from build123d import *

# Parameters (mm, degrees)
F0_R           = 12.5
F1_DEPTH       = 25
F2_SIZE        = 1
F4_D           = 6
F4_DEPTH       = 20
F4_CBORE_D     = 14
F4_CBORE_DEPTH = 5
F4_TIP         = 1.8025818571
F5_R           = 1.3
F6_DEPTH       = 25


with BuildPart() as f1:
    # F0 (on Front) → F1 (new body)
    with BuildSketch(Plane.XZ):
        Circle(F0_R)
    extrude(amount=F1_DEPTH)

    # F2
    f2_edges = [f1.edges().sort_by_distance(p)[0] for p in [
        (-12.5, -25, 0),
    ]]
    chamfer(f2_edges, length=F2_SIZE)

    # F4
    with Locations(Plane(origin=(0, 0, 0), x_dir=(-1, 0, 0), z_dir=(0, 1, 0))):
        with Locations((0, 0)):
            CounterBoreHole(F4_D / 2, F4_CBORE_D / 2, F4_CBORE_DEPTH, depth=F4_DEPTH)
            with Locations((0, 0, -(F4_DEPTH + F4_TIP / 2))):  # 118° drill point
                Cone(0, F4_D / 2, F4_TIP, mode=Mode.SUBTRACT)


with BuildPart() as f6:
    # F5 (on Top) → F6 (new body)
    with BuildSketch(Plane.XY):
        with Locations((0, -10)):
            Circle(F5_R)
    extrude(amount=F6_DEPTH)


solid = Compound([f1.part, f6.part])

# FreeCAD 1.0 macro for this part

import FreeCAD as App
import Part
import Sketcher

V = App.Vector
Q = App.Units.Quantity


def edges_at(feature, points):
    """Names of the edges that pass closest to the given points."""
    edges = feature.Shape.Edges
    near = lambda p: min(range(len(edges)), key=lambda i: edges[i].distToShape(Part.Vertex(*p))[0])
    return sorted({f"Edge{near(p) + 1}" for p in points})

doc = App.newDocument("Part")
params = doc.addObject("Spreadsheet::Sheet", "Params")
for row, (alias, value) in enumerate([
    ("sketch1_diameter", "25 mm"),
    ("pad1_length", "25 mm"),
    ("chamfer_size", "1 mm"),
    ("sketch2_diameter", "6 mm"),
    ("hole_diameter", "6 mm"),
    ("hole_depth", "20 mm"),
    ("hole_cbore_diameter", "14 mm"),
    ("hole_cbore_depth", "5 mm"),
    ("sketch3_diameter", "2.6 mm"),
    ("pad2_length", "25 mm"),
], start=1):
    params.set(f"A{row}", alias)
    params.set(f"B{row}", "=" + value)
    params.setAlias(f"B{row}", alias)

body = doc.addObject("PartDesign::Body", "Body")

# Sketch on XZ plane
sketch1 = body.newObject("Sketcher::SketchObject", "Sketch")
sketch1.AttachmentSupport = (doc.getObject("XZ_Plane"), [""])
sketch1.MapMode = "FlatFace"
sketch1.addGeometry(Part.Circle(V(0, 0, 0), V(0, 0, 1), 12), False)
sketch1.addConstraint([
    Sketcher.Constraint("Coincident", 0, 3, -1, 1),
    Sketcher.Constraint("Diameter", 0, Q("25 mm")),
])
sketch1.setExpression("Constraints[1]", "Params.sketch1_diameter")
pad1 = body.newObject("PartDesign::Pad", "Pad")
pad1.Profile = sketch1
pad1.setExpression("Length", "Params.pad1_length")
doc.recompute()

chamfer = body.newObject("PartDesign::Chamfer", "Chamfer")
chamfer.Base = (pad1, edges_at(pad1, [(-12.5, -25, 0)]))
chamfer.setExpression("Size", "Params.chamfer_size")

# Sketch on XZ plane
sketch2 = body.newObject("Sketcher::SketchObject", "Sketch001")
sketch2.AttachmentSupport = (doc.getObject("XZ_Plane"), [""])
sketch2.MapMode = "FlatFace"
sketch2.addGeometry(Part.Circle(V(0, 0, 0), V(0, 0, 1), 3), False)
sketch2.addConstraint([
    Sketcher.Constraint("Coincident", 0, 3, -1, 1),
    Sketcher.Constraint("Diameter", 0, Q("6 mm")),
])
sketch2.setExpression("Constraints[1]", "Params.sketch2_diameter")
doc.recompute()
hole = body.newObject("PartDesign::Hole", "Hole")
hole.Profile = sketch2
hole.ThreadType = "None"
hole.setExpression("Diameter", "Params.hole_diameter")
hole.DepthType = "Dimension"
hole.setExpression("Depth", "Params.hole_depth")
hole.DrillPoint = "Angled"
hole.DrillPointAngle = 118
hole.HoleCutType = "Counterbore"
hole.setExpression("HoleCutDiameter", "Params.hole_cbore_diameter")
hole.setExpression("HoleCutDepth", "Params.hole_cbore_depth")
hole.Reversed = True
body2 = doc.addObject("PartDesign::Body", "Body001")

# Sketch on XY plane
sketch3 = body2.newObject("Sketcher::SketchObject", "Sketch002")
sketch3.AttachmentSupport = (doc.getObject("XY_Plane001"), [""])
sketch3.MapMode = "FlatFace"
sketch3.addGeometry(Part.Circle(V(0, -10, 0), V(0, 0, 1), 1.3), False)
sketch3.addConstraint([
    Sketcher.Constraint("PointOnObject", 0, 3, -2),
    Sketcher.Constraint("Diameter", 0, Q("2.6 mm")),
    Sketcher.Constraint("DistanceY", 0, 3, -1, 1, Q("10 mm")),
])
sketch3.setExpression("Constraints[1]", "Params.sketch3_diameter")
pad2 = body2.newObject("PartDesign::Pad", "Pad001")
pad2.Profile = sketch3
pad2.setExpression("Length", "Params.pad2_length")

doc.recompute()
